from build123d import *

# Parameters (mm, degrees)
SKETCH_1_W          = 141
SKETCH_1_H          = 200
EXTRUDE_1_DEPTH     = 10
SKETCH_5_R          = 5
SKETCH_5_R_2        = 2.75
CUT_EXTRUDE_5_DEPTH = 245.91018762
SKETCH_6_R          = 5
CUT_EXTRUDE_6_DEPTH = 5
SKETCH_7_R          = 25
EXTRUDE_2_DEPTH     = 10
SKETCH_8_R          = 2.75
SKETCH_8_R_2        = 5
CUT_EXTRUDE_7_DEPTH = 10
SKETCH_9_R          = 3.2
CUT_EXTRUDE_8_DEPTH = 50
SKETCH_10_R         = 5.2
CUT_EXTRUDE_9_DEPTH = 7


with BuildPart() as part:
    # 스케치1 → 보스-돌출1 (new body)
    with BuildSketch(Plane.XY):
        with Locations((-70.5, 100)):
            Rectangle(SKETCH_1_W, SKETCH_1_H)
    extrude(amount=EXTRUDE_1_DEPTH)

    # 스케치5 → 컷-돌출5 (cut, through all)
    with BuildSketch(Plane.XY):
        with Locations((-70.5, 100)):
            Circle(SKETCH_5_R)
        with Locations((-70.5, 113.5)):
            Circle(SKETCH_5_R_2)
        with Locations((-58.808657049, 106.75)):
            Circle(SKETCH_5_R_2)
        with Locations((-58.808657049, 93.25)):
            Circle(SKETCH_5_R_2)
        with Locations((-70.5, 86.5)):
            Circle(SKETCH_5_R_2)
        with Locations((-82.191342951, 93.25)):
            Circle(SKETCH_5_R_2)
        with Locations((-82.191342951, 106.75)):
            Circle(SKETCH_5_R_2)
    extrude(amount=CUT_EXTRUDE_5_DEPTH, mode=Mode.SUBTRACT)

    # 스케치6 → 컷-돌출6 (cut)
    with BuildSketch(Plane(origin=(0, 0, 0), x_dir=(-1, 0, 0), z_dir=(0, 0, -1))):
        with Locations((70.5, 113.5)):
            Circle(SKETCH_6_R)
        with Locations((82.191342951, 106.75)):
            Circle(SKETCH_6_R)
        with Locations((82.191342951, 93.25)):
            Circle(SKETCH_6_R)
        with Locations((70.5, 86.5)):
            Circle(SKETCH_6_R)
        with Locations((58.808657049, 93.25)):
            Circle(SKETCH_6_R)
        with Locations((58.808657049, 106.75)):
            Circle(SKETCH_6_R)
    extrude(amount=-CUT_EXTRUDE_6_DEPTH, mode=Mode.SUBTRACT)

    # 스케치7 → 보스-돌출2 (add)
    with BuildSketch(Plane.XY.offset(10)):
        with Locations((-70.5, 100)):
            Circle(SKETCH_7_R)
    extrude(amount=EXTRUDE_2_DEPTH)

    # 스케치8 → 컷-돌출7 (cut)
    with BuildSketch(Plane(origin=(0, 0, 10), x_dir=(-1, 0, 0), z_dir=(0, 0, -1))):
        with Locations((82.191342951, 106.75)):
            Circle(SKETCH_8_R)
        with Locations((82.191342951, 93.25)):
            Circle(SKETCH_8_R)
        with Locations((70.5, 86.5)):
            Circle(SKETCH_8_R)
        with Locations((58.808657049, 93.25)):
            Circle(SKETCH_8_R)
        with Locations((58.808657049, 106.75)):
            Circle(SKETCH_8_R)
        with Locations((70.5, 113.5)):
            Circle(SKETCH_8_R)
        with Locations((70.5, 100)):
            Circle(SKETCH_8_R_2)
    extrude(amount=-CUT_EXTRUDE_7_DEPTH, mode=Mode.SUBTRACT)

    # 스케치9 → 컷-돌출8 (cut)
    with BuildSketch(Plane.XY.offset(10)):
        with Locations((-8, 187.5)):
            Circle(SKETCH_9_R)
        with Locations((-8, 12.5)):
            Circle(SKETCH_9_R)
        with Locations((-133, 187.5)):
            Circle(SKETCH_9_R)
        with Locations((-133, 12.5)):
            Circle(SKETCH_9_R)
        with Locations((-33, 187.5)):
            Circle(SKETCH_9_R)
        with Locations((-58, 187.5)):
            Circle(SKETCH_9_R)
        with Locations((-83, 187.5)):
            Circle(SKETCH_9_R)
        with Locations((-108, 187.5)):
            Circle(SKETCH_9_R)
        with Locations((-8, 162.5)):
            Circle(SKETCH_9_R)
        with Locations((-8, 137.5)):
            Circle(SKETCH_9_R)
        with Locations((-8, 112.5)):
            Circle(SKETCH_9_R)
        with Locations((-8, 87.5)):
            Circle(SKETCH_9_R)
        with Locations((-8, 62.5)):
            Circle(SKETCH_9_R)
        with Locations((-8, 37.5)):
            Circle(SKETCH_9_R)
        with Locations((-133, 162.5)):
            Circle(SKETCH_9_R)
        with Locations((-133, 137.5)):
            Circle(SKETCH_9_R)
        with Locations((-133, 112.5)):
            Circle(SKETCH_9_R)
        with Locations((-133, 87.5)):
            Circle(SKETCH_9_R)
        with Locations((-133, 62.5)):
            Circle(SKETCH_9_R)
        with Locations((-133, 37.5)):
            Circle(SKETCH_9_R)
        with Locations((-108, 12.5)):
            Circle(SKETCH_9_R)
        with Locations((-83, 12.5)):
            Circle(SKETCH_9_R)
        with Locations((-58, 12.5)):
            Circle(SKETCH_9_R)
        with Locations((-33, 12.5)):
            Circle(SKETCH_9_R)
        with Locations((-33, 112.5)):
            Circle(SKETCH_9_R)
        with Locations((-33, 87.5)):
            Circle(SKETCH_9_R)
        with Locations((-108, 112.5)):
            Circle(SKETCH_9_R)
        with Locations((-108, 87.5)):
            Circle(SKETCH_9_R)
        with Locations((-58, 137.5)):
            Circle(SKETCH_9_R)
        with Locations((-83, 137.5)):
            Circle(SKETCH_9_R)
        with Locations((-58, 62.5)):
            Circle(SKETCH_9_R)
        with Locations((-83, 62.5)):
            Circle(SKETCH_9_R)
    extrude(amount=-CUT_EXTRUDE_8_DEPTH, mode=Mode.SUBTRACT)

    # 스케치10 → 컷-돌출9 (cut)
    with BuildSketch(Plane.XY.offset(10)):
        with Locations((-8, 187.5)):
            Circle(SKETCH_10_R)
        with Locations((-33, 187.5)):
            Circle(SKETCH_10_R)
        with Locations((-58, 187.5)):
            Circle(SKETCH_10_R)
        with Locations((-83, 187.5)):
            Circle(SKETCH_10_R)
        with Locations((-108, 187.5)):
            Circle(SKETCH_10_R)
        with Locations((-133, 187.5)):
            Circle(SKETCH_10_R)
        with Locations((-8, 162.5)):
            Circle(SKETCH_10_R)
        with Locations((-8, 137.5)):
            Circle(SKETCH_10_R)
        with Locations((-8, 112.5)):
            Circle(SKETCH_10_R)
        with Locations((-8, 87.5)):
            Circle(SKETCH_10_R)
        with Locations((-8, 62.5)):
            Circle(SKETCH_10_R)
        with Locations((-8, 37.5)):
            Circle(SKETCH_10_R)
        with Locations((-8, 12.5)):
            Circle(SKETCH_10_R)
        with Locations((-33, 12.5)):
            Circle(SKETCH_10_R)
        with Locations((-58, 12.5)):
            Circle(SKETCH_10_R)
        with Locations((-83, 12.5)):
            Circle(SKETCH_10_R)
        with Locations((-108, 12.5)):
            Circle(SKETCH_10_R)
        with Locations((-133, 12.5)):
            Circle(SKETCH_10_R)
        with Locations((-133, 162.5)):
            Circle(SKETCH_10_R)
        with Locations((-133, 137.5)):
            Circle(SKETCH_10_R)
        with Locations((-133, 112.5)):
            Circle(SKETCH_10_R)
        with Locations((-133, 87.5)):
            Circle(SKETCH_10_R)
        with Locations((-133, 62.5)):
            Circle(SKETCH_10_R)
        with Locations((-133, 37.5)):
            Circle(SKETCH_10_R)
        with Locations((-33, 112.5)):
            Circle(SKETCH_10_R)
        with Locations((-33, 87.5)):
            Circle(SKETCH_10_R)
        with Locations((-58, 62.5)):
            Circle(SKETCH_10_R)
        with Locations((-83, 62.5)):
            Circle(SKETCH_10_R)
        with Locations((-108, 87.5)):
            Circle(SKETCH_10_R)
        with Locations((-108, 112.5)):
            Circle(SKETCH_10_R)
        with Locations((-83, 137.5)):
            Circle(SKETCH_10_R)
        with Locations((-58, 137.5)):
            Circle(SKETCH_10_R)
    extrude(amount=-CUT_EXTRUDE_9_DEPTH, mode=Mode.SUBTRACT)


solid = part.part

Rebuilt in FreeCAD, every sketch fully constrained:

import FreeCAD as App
import Part
import Sketcher
from FreeCAD import Vector
Q = App.Units.Quantity


def add_polygon(sketch, points):
    """Adds a closed chain of lines whose ends are joined by coincident constraints."""
    first, n = sketch.GeometryCount, len(points)
    for a, b in zip(points, points[1:] + points[:1]):
        sketch.addGeometry(Part.LineSegment(App.Vector(*a, 0), App.Vector(*b, 0)), False)
    for i in range(n):
        sketch.addConstraint(Sketcher.Constraint("Coincident", first + i, 2, first + (i + 1) % n, 1))

doc = App.newDocument("Part")
body = doc.addObject("PartDesign::Body", "Body")

# Sketch on XY plane
sketch1 = body.newObject("Sketcher::SketchObject", "Sketch")
sketch1.AttachmentSupport = (doc.getObject("XY_Plane"), [""])
sketch1.MapMode = "FlatFace"
add_polygon(sketch1, [(-141, 200), (-141, 0), (0, 0), (0, 200)])  # lines 0-3
sketch1.addConstraint([
    Sketcher.Constraint("Vertical", 0),
    Sketcher.Constraint("Horizontal", 1),
    Sketcher.Constraint("Vertical", 2),
    Sketcher.Constraint("Horizontal", 3),
    Sketcher.Constraint("Coincident", 1, 2, -1, 1),
    Sketcher.Constraint("DistanceX", 1, 1, 1, 2, Q("141 mm")),
    Sketcher.Constraint("DistanceY", 0, 2, 0, 1, Q("200 mm")),
])
pad1 = body.newObject("PartDesign::Pad", "Pad")
pad1.Profile = sketch1
pad1.Length = 10

# Sketch on XY plane
sketch2 = body.newObject("Sketcher::SketchObject", "Sketch001")
sketch2.AttachmentSupport = (doc.getObject("XY_Plane"), [""])
sketch2.MapMode = "FlatFace"
sketch2.addGeometry([
    Part.Circle(Vector(-70.5, 100, 0), Vector(0, 0, 1), 5),  # 0
    Part.Circle(Vector(-70.5, 113.5, 0), Vector(0, 0, 1), 2.75),  # 1
    Part.Circle(Vector(-58.808657, 106.75, 0), Vector(0, 0, 1), 2.75),  # 2
    Part.Circle(Vector(-58.808657, 93.25, 0), Vector(0, 0, 1), 2.75),  # 3
    Part.Circle(Vector(-70.5, 86.5, 0), Vector(0, 0, 1), 2.75),  # 4
    Part.Circle(Vector(-82.191343, 93.25, 0), Vector(0, 0, 1), 2.75),  # 5
    Part.Circle(Vector(-82.191343, 106.75, 0), Vector(0, 0, 1), 2.75),  # 6
], False)
sketch2.addConstraint([
    Sketcher.Constraint("Equal", 1, 2),
    Sketcher.Constraint("Equal", 2, 3),
    Sketcher.Constraint("Equal", 3, 4),
    Sketcher.Constraint("Equal", 4, 5),
    Sketcher.Constraint("Equal", 5, 6),
    Sketcher.Constraint("Horizontal", 3, 3, 5, 3),
    Sketcher.Constraint("Horizontal", 2, 3, 6, 3),
    Sketcher.Constraint("Vertical", 0, 3, 1, 3),
    Sketcher.Constraint("Vertical", 2, 3, 3, 3),
    Sketcher.Constraint("Vertical", 1, 3, 4, 3),
    Sketcher.Constraint("Vertical", 5, 3, 6, 3),
    Sketcher.Constraint("Diameter", 0, Q("10 mm")),
    Sketcher.Constraint("Diameter", 1, Q("5.5 mm")),
    Sketcher.Constraint("DistanceY", -1, 1, 0, 3, Q("100 mm")),
    Sketcher.Constraint("DistanceY", 4, 3, 1, 3, Q("27 mm")),
    Sketcher.Constraint("DistanceX", 0, 3, -1, 1, Q("70.5 mm")),
    Sketcher.Constraint("DistanceY", -1, 1, 1, 3, Q("113.5 mm")),
    Sketcher.Constraint("DistanceY", 3, 3, 2, 3, Q("13.5 mm")),
    Sketcher.Constraint("DistanceY", -1, 1, 2, 3, Q("106.75 mm")),
    Sketcher.Constraint("DistanceX", 2, 3, -1, 1, Q("58.808657 mm")),
    Sketcher.Constraint("DistanceX", 5, 3, -1, 1, Q("82.191343 mm")),
])
pocket1 = body.newObject("PartDesign::Pocket", "Pocket")
pocket1.Profile = sketch2
pocket1.Type = "ThroughAll"
pocket1.Reversed = True

# Sketch on XY plane
sketch3 = body.newObject("Sketcher::SketchObject", "Sketch002")
sketch3.AttachmentSupport = (doc.getObject("XY_Plane"), [""])
sketch3.MapMode = "FlatFace"
sketch3.addGeometry([
    Part.Circle(Vector(-70.5, 113.5, 0), Vector(0, 0, 1), 5),  # 0
    Part.Circle(Vector(-82.191343, 106.75, 0), Vector(0, 0, 1), 5),  # 1
    Part.Circle(Vector(-82.191343, 93.25, 0), Vector(0, 0, 1), 5),  # 2
    Part.Circle(Vector(-70.5, 86.5, 0), Vector(0, 0, 1), 5),  # 3
    Part.Circle(Vector(-58.808657, 93.25, 0), Vector(0, 0, 1), 5),  # 4
    Part.Circle(Vector(-58.808657, 106.75, 0), Vector(0, 0, 1), 5),  # 5
], False)
sketch3.addConstraint([
    Sketcher.Constraint("Equal", 0, 1),
    Sketcher.Constraint("Equal", 1, 2),
    Sketcher.Constraint("Equal", 2, 3),
    Sketcher.Constraint("Equal", 3, 4),
    Sketcher.Constraint("Equal", 4, 5),
    Sketcher.Constraint("Horizontal", 2, 3, 4, 3),
    Sketcher.Constraint("Horizontal", 1, 3, 5, 3),
    Sketcher.Constraint("Vertical", 1, 3, 2, 3),
    Sketcher.Constraint("Vertical", 0, 3, 3, 3),
    Sketcher.Constraint("Vertical", 4, 3, 5, 3),
    Sketcher.Constraint("Diameter", 0, Q("10 mm")),
    Sketcher.Constraint("DistanceY", 3, 3, 0, 3, Q("27 mm")),
    Sketcher.Constraint("DistanceX", 0, 3, -1, 1, Q("70.5 mm")),
    Sketcher.Constraint("DistanceY", -1, 1, 0, 3, Q("113.5 mm")),
    Sketcher.Constraint("DistanceY", 2, 3, 1, 3, Q("13.5 mm")),
    Sketcher.Constraint("DistanceY", -1, 1, 1, 3, Q("106.75 mm")),
    Sketcher.Constraint("DistanceX", 1, 3, -1, 1, Q("82.191343 mm")),
    Sketcher.Constraint("DistanceX", 4, 3, -1, 1, Q("58.808657 mm")),
])
pocket2 = body.newObject("PartDesign::Pocket", "Pocket001")
pocket2.Profile = sketch3
pocket2.Length = 5
pocket2.Reversed = True

# Sketch on XY plane
sketch4 = body.newObject("Sketcher::SketchObject", "Sketch003")
sketch4.AttachmentSupport = (doc.getObject("XY_Plane"), [""])
sketch4.MapMode = "FlatFace"
sketch4.AttachmentOffset = App.Placement(Vector(0, 0, 10), App.Rotation())
sketch4.addGeometry(Part.Circle(Vector(-70.5, 100, 0), Vector(0, 0, 1), 25), False)
sketch4.addConstraint([
    Sketcher.Constraint("Diameter", 0, Q("50 mm")),
    Sketcher.Constraint("DistanceY", -1, 1, 0, 3, Q("100 mm")),
    Sketcher.Constraint("DistanceX", 0, 3, -1, 1, Q("70.5 mm")),
])
pad2 = body.newObject("PartDesign::Pad", "Pad001")
pad2.Profile = sketch4
pad2.Length = 10

# Sketch on XY plane
sketch5 = body.newObject("Sketcher::SketchObject", "Sketch004")
sketch5.AttachmentSupport = (doc.getObject("XY_Plane"), [""])
sketch5.MapMode = "FlatFace"
sketch5.AttachmentOffset = App.Placement(Vector(0, 0, 10), App.Rotation())
sketch5.addGeometry([
    Part.Circle(Vector(-82.191343, 106.75, 0), Vector(0, 0, 1), 2.75),  # 0
    Part.Circle(Vector(-82.191343, 93.25, 0), Vector(0, 0, 1), 2.75),  # 1
    Part.Circle(Vector(-70.5, 86.5, 0), Vector(0, 0, 1), 2.75),  # 2
    Part.Circle(Vector(-58.808657, 93.25, 0), Vector(0, 0, 1), 2.75),  # 3
    Part.Circle(Vector(-58.808657, 106.75, 0), Vector(0, 0, 1), 2.75),  # 4
    Part.Circle(Vector(-70.5, 113.5, 0), Vector(0, 0, 1), 2.75),  # 5
    Part.Circle(Vector(-70.5, 100, 0), Vector(0, 0, 1), 5),  # 6
], False)
sketch5.addConstraint([
    Sketcher.Constraint("Equal", 0, 1),
    Sketcher.Constraint("Equal", 1, 2),
    Sketcher.Constraint("Equal", 2, 3),
    Sketcher.Constraint("Equal", 3, 4),
    Sketcher.Constraint("Equal", 4, 5),
    Sketcher.Constraint("Horizontal", 1, 3, 3, 3),
    Sketcher.Constraint("Horizontal", 0, 3, 4, 3),
    Sketcher.Constraint("Vertical", 0, 3, 1, 3),
    Sketcher.Constraint("Vertical", 3, 3, 4, 3),
    Sketcher.Constraint("Vertical", 2, 3, 5, 3),
    Sketcher.Constraint("Vertical", 5, 3, 6, 3),
    Sketcher.Constraint("Diameter", 6, Q("10 mm")),
    Sketcher.Constraint("Diameter", 0, Q("5.5 mm")),
    Sketcher.Constraint("DistanceY", -1, 1, 6, 3, Q("100 mm")),
    Sketcher.Constraint("DistanceY", 2, 3, 5, 3, Q("27 mm")),
    Sketcher.Constraint("DistanceX", 2, 3, -1, 1, Q("70.5 mm")),
    Sketcher.Constraint("DistanceY", -1, 1, 2, 3, Q("86.5 mm")),
    Sketcher.Constraint("DistanceY", 1, 3, 0, 3, Q("13.5 mm")),
    Sketcher.Constraint("DistanceY", -1, 1, 0, 3, Q("106.75 mm")),
    Sketcher.Constraint("DistanceX", 0, 3, -1, 1, Q("82.191343 mm")),
    Sketcher.Constraint("DistanceX", 3, 3, -1, 1, Q("58.808657 mm")),
])
pocket3 = body.newObject("PartDesign::Pocket", "Pocket002")
pocket3.Profile = sketch5
pocket3.Length = 10
pocket3.Reversed = True

# Sketch on XY plane
sketch6 = body.newObject("Sketcher::SketchObject", "Sketch005")
sketch6.AttachmentSupport = (doc.getObject("XY_Plane"), [""])
sketch6.MapMode = "FlatFace"
sketch6.AttachmentOffset = App.Placement(Vector(0, 0, 10), App.Rotation())
sketch6.addGeometry([
    Part.Circle(Vector(-8, 187.5, 0), Vector(0, 0, 1), 3.2),  # 0
    Part.Circle(Vector(-8, 12.5, 0), Vector(0, 0, 1), 3.2),  # 1
    Part.Circle(Vector(-133, 187.5, 0), Vector(0, 0, 1), 3.2),  # 2
    Part.Circle(Vector(-133, 12.5, 0), Vector(0, 0, 1), 3.2),  # 3
    Part.Circle(Vector(-33, 187.5, 0), Vector(0, 0, 1), 3.2),  # 4
    Part.Circle(Vector(-58, 187.5, 0), Vector(0, 0, 1), 3.2),  # 5
    Part.Circle(Vector(-83, 187.5, 0), Vector(0, 0, 1), 3.2),  # 6
    Part.Circle(Vector(-108, 187.5, 0), Vector(0, 0, 1), 3.2),  # 7
    Part.Circle(Vector(-8, 162.5, 0), Vector(0, 0, 1), 3.2),  # 8
    Part.Circle(Vector(-8, 137.5, 0), Vector(0, 0, 1), 3.2),  # 9
    Part.Circle(Vector(-8, 112.5, 0), Vector(0, 0, 1), 3.2),  # 10
    Part.Circle(Vector(-8, 87.5, 0), Vector(0, 0, 1), 3.2),  # 11
    Part.Circle(Vector(-8, 62.5, 0), Vector(0, 0, 1), 3.2),  # 12
    Part.Circle(Vector(-8, 37.5, 0), Vector(0, 0, 1), 3.2),  # 13
    Part.Circle(Vector(-133, 162.5, 0), Vector(0, 0, 1), 3.2),  # 14
    Part.Circle(Vector(-133, 137.5, 0), Vector(0, 0, 1), 3.2),  # 15
    Part.Circle(Vector(-133, 112.5, 0), Vector(0, 0, 1), 3.2),  # 16
    Part.Circle(Vector(-133, 87.5, 0), Vector(0, 0, 1), 3.2),  # 17
    Part.Circle(Vector(-133, 62.5, 0), Vector(0, 0, 1), 3.2),  # 18
    Part.Circle(Vector(-133, 37.5, 0), Vector(0, 0, 1), 3.2),  # 19
    Part.Circle(Vector(-108, 12.5, 0), Vector(0, 0, 1), 3.2),  # 20
    Part.Circle(Vector(-83, 12.5, 0), Vector(0, 0, 1), 3.2),  # 21
    Part.Circle(Vector(-58, 12.5, 0), Vector(0, 0, 1), 3.2),  # 22
    Part.Circle(Vector(-33, 12.5, 0), Vector(0, 0, 1), 3.2),  # 23
    Part.Circle(Vector(-33, 112.5, 0), Vector(0, 0, 1), 3.2),  # 24
    Part.Circle(Vector(-33, 87.5, 0), Vector(0, 0, 1), 3.2),  # 25
    Part.Circle(Vector(-108, 112.5, 0), Vector(0, 0, 1), 3.2),  # 26
    Part.Circle(Vector(-108, 87.5, 0), Vector(0, 0, 1), 3.2),  # 27
    Part.Circle(Vector(-58, 137.5, 0), Vector(0, 0, 1), 3.2),  # 28
    Part.Circle(Vector(-83, 137.5, 0), Vector(0, 0, 1), 3.2),  # 29
    Part.Circle(Vector(-58, 62.5, 0), Vector(0, 0, 1), 3.2),  # 30
    Part.Circle(Vector(-83, 62.5, 0), Vector(0, 0, 1), 3.2),  # 31
], False)
sketch6.addConstraint([
    Sketcher.Constraint("Equal", 0, 1),
    Sketcher.Constraint("Equal", 1, 2),
    Sketcher.Constraint("Equal", 2, 3),
    Sketcher.Constraint("Equal", 3, 4),
    Sketcher.Constraint("Equal", 4, 5),
    Sketcher.Constraint("Equal", 5, 6),
    Sketcher.Constraint("Equal", 6, 7),
    Sketcher.Constraint("Equal", 7, 8),
    Sketcher.Constraint("Equal", 8, 9),
    Sketcher.Constraint("Equal", 9, 10),
    Sketcher.Constraint("Equal", 10, 11),
    Sketcher.Constraint("Equal", 11, 12),
    Sketcher.Constraint("Equal", 12, 13),
    Sketcher.Constraint("Equal", 13, 14),
    Sketcher.Constraint("Equal", 14, 15),
    Sketcher.Constraint("Equal", 15, 16),
    Sketcher.Constraint("Equal", 16, 17),
    Sketcher.Constraint("Equal", 17, 18),
    Sketcher.Constraint("Equal", 18, 19),
    Sketcher.Constraint("Equal", 19, 20),
    Sketcher.Constraint("Equal", 20, 21),
    Sketcher.Constraint("Equal", 21, 22),
    Sketcher.Constraint("Equal", 22, 23),
    Sketcher.Constraint("Equal", 23, 24),
    Sketcher.Constraint("Equal", 24, 25),
    Sketcher.Constraint("Equal", 25, 26),
    Sketcher.Constraint("Equal", 26, 27),
    Sketcher.Constraint("Equal", 27, 28),
    Sketcher.Constraint("Equal", 28, 29),
    Sketcher.Constraint("Equal", 29, 30),
    Sketcher.Constraint("Equal", 30, 31),
    Sketcher.Constraint("Horizontal", 0, 3, 2, 3),
    Sketcher.Constraint("Horizontal", 1, 3, 3, 3),
    Sketcher.Constraint("Horizontal", 2, 3, 4, 3),
    Sketcher.Constraint("Horizontal", 4, 3, 5, 3),
    Sketcher.Constraint("Horizontal", 5, 3, 6, 3),
    Sketcher.Constraint("Horizontal", 6, 3, 7, 3),
    Sketcher.Constraint("Horizontal", 8, 3, 14, 3),
    Sketcher.Constraint("Horizontal", 9, 3, 15, 3),
    Sketcher.Constraint("Horizontal", 10, 3, 16, 3),
    Sketcher.Constraint("Horizontal", 11, 3, 17, 3),
    Sketcher.Constraint("Horizontal", 12, 3, 18, 3),
    Sketcher.Constraint("Horizontal", 13, 3, 19, 3),
    Sketcher.Constraint("Horizontal", 3, 3, 20, 3),
    Sketcher.Constraint("Horizontal", 20, 3, 21, 3),
    Sketcher.Constraint("Horizontal", 21, 3, 22, 3),
    Sketcher.Constraint("Horizontal", 22, 3, 23, 3),
    Sketcher.Constraint("Horizontal", 16, 3, 24, 3),
    Sketcher.Constraint("Horizontal", 17, 3, 25, 3),
    Sketcher.Constraint("Horizontal", 24, 3, 26, 3),
    Sketcher.Constraint("Horizontal", 25, 3, 27, 3),
    Sketcher.Constraint("Horizontal", 15, 3, 28, 3),
    Sketcher.Constraint("Horizontal", 28, 3, 29, 3),
    Sketcher.Constraint("Horizontal", 18, 3, 30, 3),
    Sketcher.Constraint("Horizontal", 30, 3, 31, 3),
    Sketcher.Constraint("Vertical", 0, 3, 1, 3),
    Sketcher.Constraint("Vertical", 2, 3, 3, 3),
    Sketcher.Constraint("Vertical", 1, 3, 8, 3),
    Sketcher.Constraint("Vertical", 8, 3, 9, 3),
    Sketcher.Constraint("Vertical", 9, 3, 10, 3),
    Sketcher.Constraint("Vertical", 10, 3, 11, 3),
    Sketcher.Constraint("Vertical", 11, 3, 12, 3),
    Sketcher.Constraint("Vertical", 12, 3, 13, 3),
    Sketcher.Constraint("Vertical", 3, 3, 14, 3),
    Sketcher.Constraint("Vertical", 14, 3, 15, 3),
    Sketcher.Constraint("Vertical", 15, 3, 16, 3),
    Sketcher.Constraint("Vertical", 16, 3, 17, 3),
    Sketcher.Constraint("Vertical", 17, 3, 18, 3),
    Sketcher.Constraint("Vertical", 18, 3, 19, 3),
    Sketcher.Constraint("Vertical", 7, 3, 20, 3),
    Sketcher.Constraint("Vertical", 6, 3, 21, 3),
    Sketcher.Constraint("Vertical", 5, 3, 22, 3),
    Sketcher.Constraint("Vertical", 4, 3, 23, 3),
    Sketcher.Constraint("Vertical", 23, 3, 24, 3),
    Sketcher.Constraint("Vertical", 24, 3, 25, 3),
    Sketcher.Constraint("Vertical", 20, 3, 26, 3),
    Sketcher.Constraint("Vertical", 26, 3, 27, 3),
    Sketcher.Constraint("Vertical", 22, 3, 28, 3),
    Sketcher.Constraint("Vertical", 21, 3, 29, 3),
    Sketcher.Constraint("Vertical", 28, 3, 30, 3),
    Sketcher.Constraint("Vertical", 29, 3, 31, 3),
    Sketcher.Constraint("Diameter", 0, Q("6.4 mm")),
    Sketcher.Constraint("DistanceX", 0, 3, -1, 1, Q("8 mm")),
    Sketcher.Constraint("DistanceX", 2, 3, -1, 1, Q("133 mm")),
    Sketcher.Constraint("DistanceX", 4, 3, -1, 1, Q("33 mm")),
    Sketcher.Constraint("DistanceX", 5, 3, -1, 1, Q("58 mm")),
    Sketcher.Constraint("DistanceX", 6, 3, -1, 1, Q("83 mm")),
    Sketcher.Constraint("DistanceX", 7, 3, -1, 1, Q("108 mm")),
    Sketcher.Constraint("DistanceY", 1, 3, 0, 3, Q("175 mm")),
    Sketcher.Constraint("DistanceY", 8, 3, 0, 3, Q("25 mm")),
    Sketcher.Constraint("DistanceY", 9, 3, 8, 3, Q("25 mm")),
    Sketcher.Constraint("DistanceY", 10, 3, 9, 3, Q("25 mm")),
    Sketcher.Constraint("DistanceY", 11, 3, 10, 3, Q("25 mm")),
    Sketcher.Constraint("DistanceY", 12, 3, 11, 3, Q("25 mm")),
    Sketcher.Constraint("DistanceY", 1, 3, 13, 3, Q("25 mm")),
    Sketcher.Constraint("DistanceY", -1, 1, 0, 3, Q("187.5 mm")),
])
pocket4 = body.newObject("PartDesign::Pocket", "Pocket003")
pocket4.Profile = sketch6
pocket4.Length = 50

# Sketch on XY plane
sketch7 = body.newObject("Sketcher::SketchObject", "Sketch006")
sketch7.AttachmentSupport = (doc.getObject("XY_Plane"), [""])
sketch7.MapMode = "FlatFace"
sketch7.AttachmentOffset = App.Placement(Vector(0, 0, 10), App.Rotation())
sketch7.addGeometry([
    Part.Circle(Vector(-8, 187.5, 0), Vector(0, 0, 1), 5.2),  # 0
    Part.Circle(Vector(-33, 187.5, 0), Vector(0, 0, 1), 5.2),  # 1
    Part.Circle(Vector(-58, 187.5, 0), Vector(0, 0, 1), 5.2),  # 2
    Part.Circle(Vector(-83, 187.5, 0), Vector(0, 0, 1), 5.2),  # 3
    Part.Circle(Vector(-108, 187.5, 0), Vector(0, 0, 1), 5.2),  # 4
    Part.Circle(Vector(-133, 187.5, 0), Vector(0, 0, 1), 5.2),  # 5
    Part.Circle(Vector(-8, 162.5, 0), Vector(0, 0, 1), 5.2),  # 6
    Part.Circle(Vector(-8, 137.5, 0), Vector(0, 0, 1), 5.2),  # 7
    Part.Circle(Vector(-8, 112.5, 0), Vector(0, 0, 1), 5.2),  # 8
    Part.Circle(Vector(-8, 87.5, 0), Vector(0, 0, 1), 5.2),  # 9
    Part.Circle(Vector(-8, 62.5, 0), Vector(0, 0, 1), 5.2),  # 10
    Part.Circle(Vector(-8, 37.5, 0), Vector(0, 0, 1), 5.2),  # 11
    Part.Circle(Vector(-8, 12.5, 0), Vector(0, 0, 1), 5.2),  # 12
    Part.Circle(Vector(-33, 12.5, 0), Vector(0, 0, 1), 5.2),  # 13
    Part.Circle(Vector(-58, 12.5, 0), Vector(0, 0, 1), 5.2),  # 14
    Part.Circle(Vector(-83, 12.5, 0), Vector(0, 0, 1), 5.2),  # 15
    Part.Circle(Vector(-108, 12.5, 0), Vector(0, 0, 1), 5.2),  # 16
    Part.Circle(Vector(-133, 12.5, 0), Vector(0, 0, 1), 5.2),  # 17
    Part.Circle(Vector(-133, 162.5, 0), Vector(0, 0, 1), 5.2),  # 18
    Part.Circle(Vector(-133, 137.5, 0), Vector(0, 0, 1), 5.2),  # 19
    Part.Circle(Vector(-133, 112.5, 0), Vector(0, 0, 1), 5.2),  # 20
    Part.Circle(Vector(-133, 87.5, 0), Vector(0, 0, 1), 5.2),  # 21
    Part.Circle(Vector(-133, 62.5, 0), Vector(0, 0, 1), 5.2),  # 22
    Part.Circle(Vector(-133, 37.5, 0), Vector(0, 0, 1), 5.2),  # 23
    Part.Circle(Vector(-33, 112.5, 0), Vector(0, 0, 1), 5.2),  # 24
    Part.Circle(Vector(-33, 87.5, 0), Vector(0, 0, 1), 5.2),  # 25
    Part.Circle(Vector(-58, 62.5, 0), Vector(0, 0, 1), 5.2),  # 26
    Part.Circle(Vector(-83, 62.5, 0), Vector(0, 0, 1), 5.2),  # 27
    Part.Circle(Vector(-108, 87.5, 0), Vector(0, 0, 1), 5.2),  # 28
    Part.Circle(Vector(-108, 112.5, 0), Vector(0, 0, 1), 5.2),  # 29
    Part.Circle(Vector(-83, 137.5, 0), Vector(0, 0, 1), 5.2),  # 30
    Part.Circle(Vector(-58, 137.5, 0), Vector(0, 0, 1), 5.2),  # 31
], False)
sketch7.addConstraint([
    Sketcher.Constraint("Equal", 0, 1),
    Sketcher.Constraint("Equal", 1, 2),
    Sketcher.Constraint("Equal", 2, 3),
    Sketcher.Constraint("Equal", 3, 4),
    Sketcher.Constraint("Equal", 4, 5),
    Sketcher.Constraint("Equal", 5, 6),
    Sketcher.Constraint("Equal", 6, 7),
    Sketcher.Constraint("Equal", 7, 8),
    Sketcher.Constraint("Equal", 8, 9),
    Sketcher.Constraint("Equal", 9, 10),
    Sketcher.Constraint("Equal", 10, 11),
    Sketcher.Constraint("Equal", 11, 12),
    Sketcher.Constraint("Equal", 12, 13),
    Sketcher.Constraint("Equal", 13, 14),
    Sketcher.Constraint("Equal", 14, 15),
    Sketcher.Constraint("Equal", 15, 16),
    Sketcher.Constraint("Equal", 16, 17),
    Sketcher.Constraint("Equal", 17, 18),
    Sketcher.Constraint("Equal", 18, 19),
    Sketcher.Constraint("Equal", 19, 20),
    Sketcher.Constraint("Equal", 20, 21),
    Sketcher.Constraint("Equal", 21, 22),
    Sketcher.Constraint("Equal", 22, 23),
    Sketcher.Constraint("Equal", 23, 24),
    Sketcher.Constraint("Equal", 24, 25),
    Sketcher.Constraint("Equal", 25, 26),
    Sketcher.Constraint("Equal", 26, 27),
    Sketcher.Constraint("Equal", 27, 28),
    Sketcher.Constraint("Equal", 28, 29),
    Sketcher.Constraint("Equal", 29, 30),
    Sketcher.Constraint("Equal", 30, 31),
    Sketcher.Constraint("Horizontal", 0, 3, 1, 3),
    Sketcher.Constraint("Horizontal", 1, 3, 2, 3),
    Sketcher.Constraint("Horizontal", 2, 3, 3, 3),
    Sketcher.Constraint("Horizontal", 3, 3, 4, 3),
    Sketcher.Constraint("Horizontal", 4, 3, 5, 3),
    Sketcher.Constraint("Horizontal", 12, 3, 13, 3),
    Sketcher.Constraint("Horizontal", 13, 3, 14, 3),
    Sketcher.Constraint("Horizontal", 14, 3, 15, 3),
    Sketcher.Constraint("Horizontal", 15, 3, 16, 3),
    Sketcher.Constraint("Horizontal", 16, 3, 17, 3),
    Sketcher.Constraint("Horizontal", 6, 3, 18, 3),
    Sketcher.Constraint("Horizontal", 7, 3, 19, 3),
    Sketcher.Constraint("Horizontal", 8, 3, 20, 3),
    Sketcher.Constraint("Horizontal", 9, 3, 21, 3),
    Sketcher.Constraint("Horizontal", 10, 3, 22, 3),
    Sketcher.Constraint("Horizontal", 11, 3, 23, 3),
    Sketcher.Constraint("Horizontal", 20, 3, 24, 3),
    Sketcher.Constraint("Horizontal", 21, 3, 25, 3),
    Sketcher.Constraint("Horizontal", 22, 3, 26, 3),
    Sketcher.Constraint("Horizontal", 26, 3, 27, 3),
    Sketcher.Constraint("Horizontal", 25, 3, 28, 3),
    Sketcher.Constraint("Horizontal", 24, 3, 29, 3),
    Sketcher.Constraint("Horizontal", 19, 3, 30, 3),
    Sketcher.Constraint("Horizontal", 30, 3, 31, 3),
    Sketcher.Constraint("Vertical", 0, 3, 6, 3),
    Sketcher.Constraint("Vertical", 6, 3, 7, 3),
    Sketcher.Constraint("Vertical", 7, 3, 8, 3),
    Sketcher.Constraint("Vertical", 8, 3, 9, 3),
    Sketcher.Constraint("Vertical", 9, 3, 10, 3),
    Sketcher.Constraint("Vertical", 10, 3, 11, 3),
    Sketcher.Constraint("Vertical", 11, 3, 12, 3),
    Sketcher.Constraint("Vertical", 1, 3, 13, 3),
    Sketcher.Constraint("Vertical", 2, 3, 14, 3),
    Sketcher.Constraint("Vertical", 3, 3, 15, 3),
    Sketcher.Constraint("Vertical", 4, 3, 16, 3),
    Sketcher.Constraint("Vertical", 5, 3, 17, 3),
    Sketcher.Constraint("Vertical", 17, 3, 18, 3),
    Sketcher.Constraint("Vertical", 18, 3, 19, 3),
    Sketcher.Constraint("Vertical", 19, 3, 20, 3),
    Sketcher.Constraint("Vertical", 20, 3, 21, 3),
    Sketcher.Constraint("Vertical", 21, 3, 22, 3),
    Sketcher.Constraint("Vertical", 22, 3, 23, 3),
    Sketcher.Constraint("Vertical", 13, 3, 24, 3),
    Sketcher.Constraint("Vertical", 24, 3, 25, 3),
    Sketcher.Constraint("Vertical", 14, 3, 26, 3),
    Sketcher.Constraint("Vertical", 15, 3, 27, 3),
    Sketcher.Constraint("Vertical", 16, 3, 28, 3),
    Sketcher.Constraint("Vertical", 28, 3, 29, 3),
    Sketcher.Constraint("Vertical", 27, 3, 30, 3),
    Sketcher.Constraint("Vertical", 26, 3, 31, 3),
    Sketcher.Constraint("Diameter", 0, Q("10.4 mm")),
    Sketcher.Constraint("DistanceX", 0, 3, -1, 1, Q("8 mm")),
    Sketcher.Constraint("DistanceX", 1, 3, -1, 1, Q("33 mm")),
    Sketcher.Constraint("DistanceX", 2, 3, -1, 1, Q("58 mm")),
    Sketcher.Constraint("DistanceX", 3, 3, -1, 1, Q("83 mm")),
    Sketcher.Constraint("DistanceX", 4, 3, -1, 1, Q("108 mm")),
    Sketcher.Constraint("DistanceX", 5, 3, -1, 1, Q("133 mm")),
    Sketcher.Constraint("DistanceY", 6, 3, 0, 3, Q("25 mm")),
    Sketcher.Constraint("DistanceY", 7, 3, 6, 3, Q("25 mm")),
    Sketcher.Constraint("DistanceY", 8, 3, 7, 3, Q("25 mm")),
    Sketcher.Constraint("DistanceY", 9, 3, 8, 3, Q("25 mm")),
    Sketcher.Constraint("DistanceY", 10, 3, 9, 3, Q("25 mm")),
    Sketcher.Constraint("DistanceY", 11, 3, 10, 3, Q("25 mm")),
    Sketcher.Constraint("DistanceY", 12, 3, 11, 3, Q("25 mm")),
    Sketcher.Constraint("DistanceY", -1, 1, 0, 3, Q("187.5 mm")),
])
pocket5 = body.newObject("PartDesign::Pocket", "Pocket004")
pocket5.Profile = sketch7
pocket5.Length = 7

doc.recompute()
